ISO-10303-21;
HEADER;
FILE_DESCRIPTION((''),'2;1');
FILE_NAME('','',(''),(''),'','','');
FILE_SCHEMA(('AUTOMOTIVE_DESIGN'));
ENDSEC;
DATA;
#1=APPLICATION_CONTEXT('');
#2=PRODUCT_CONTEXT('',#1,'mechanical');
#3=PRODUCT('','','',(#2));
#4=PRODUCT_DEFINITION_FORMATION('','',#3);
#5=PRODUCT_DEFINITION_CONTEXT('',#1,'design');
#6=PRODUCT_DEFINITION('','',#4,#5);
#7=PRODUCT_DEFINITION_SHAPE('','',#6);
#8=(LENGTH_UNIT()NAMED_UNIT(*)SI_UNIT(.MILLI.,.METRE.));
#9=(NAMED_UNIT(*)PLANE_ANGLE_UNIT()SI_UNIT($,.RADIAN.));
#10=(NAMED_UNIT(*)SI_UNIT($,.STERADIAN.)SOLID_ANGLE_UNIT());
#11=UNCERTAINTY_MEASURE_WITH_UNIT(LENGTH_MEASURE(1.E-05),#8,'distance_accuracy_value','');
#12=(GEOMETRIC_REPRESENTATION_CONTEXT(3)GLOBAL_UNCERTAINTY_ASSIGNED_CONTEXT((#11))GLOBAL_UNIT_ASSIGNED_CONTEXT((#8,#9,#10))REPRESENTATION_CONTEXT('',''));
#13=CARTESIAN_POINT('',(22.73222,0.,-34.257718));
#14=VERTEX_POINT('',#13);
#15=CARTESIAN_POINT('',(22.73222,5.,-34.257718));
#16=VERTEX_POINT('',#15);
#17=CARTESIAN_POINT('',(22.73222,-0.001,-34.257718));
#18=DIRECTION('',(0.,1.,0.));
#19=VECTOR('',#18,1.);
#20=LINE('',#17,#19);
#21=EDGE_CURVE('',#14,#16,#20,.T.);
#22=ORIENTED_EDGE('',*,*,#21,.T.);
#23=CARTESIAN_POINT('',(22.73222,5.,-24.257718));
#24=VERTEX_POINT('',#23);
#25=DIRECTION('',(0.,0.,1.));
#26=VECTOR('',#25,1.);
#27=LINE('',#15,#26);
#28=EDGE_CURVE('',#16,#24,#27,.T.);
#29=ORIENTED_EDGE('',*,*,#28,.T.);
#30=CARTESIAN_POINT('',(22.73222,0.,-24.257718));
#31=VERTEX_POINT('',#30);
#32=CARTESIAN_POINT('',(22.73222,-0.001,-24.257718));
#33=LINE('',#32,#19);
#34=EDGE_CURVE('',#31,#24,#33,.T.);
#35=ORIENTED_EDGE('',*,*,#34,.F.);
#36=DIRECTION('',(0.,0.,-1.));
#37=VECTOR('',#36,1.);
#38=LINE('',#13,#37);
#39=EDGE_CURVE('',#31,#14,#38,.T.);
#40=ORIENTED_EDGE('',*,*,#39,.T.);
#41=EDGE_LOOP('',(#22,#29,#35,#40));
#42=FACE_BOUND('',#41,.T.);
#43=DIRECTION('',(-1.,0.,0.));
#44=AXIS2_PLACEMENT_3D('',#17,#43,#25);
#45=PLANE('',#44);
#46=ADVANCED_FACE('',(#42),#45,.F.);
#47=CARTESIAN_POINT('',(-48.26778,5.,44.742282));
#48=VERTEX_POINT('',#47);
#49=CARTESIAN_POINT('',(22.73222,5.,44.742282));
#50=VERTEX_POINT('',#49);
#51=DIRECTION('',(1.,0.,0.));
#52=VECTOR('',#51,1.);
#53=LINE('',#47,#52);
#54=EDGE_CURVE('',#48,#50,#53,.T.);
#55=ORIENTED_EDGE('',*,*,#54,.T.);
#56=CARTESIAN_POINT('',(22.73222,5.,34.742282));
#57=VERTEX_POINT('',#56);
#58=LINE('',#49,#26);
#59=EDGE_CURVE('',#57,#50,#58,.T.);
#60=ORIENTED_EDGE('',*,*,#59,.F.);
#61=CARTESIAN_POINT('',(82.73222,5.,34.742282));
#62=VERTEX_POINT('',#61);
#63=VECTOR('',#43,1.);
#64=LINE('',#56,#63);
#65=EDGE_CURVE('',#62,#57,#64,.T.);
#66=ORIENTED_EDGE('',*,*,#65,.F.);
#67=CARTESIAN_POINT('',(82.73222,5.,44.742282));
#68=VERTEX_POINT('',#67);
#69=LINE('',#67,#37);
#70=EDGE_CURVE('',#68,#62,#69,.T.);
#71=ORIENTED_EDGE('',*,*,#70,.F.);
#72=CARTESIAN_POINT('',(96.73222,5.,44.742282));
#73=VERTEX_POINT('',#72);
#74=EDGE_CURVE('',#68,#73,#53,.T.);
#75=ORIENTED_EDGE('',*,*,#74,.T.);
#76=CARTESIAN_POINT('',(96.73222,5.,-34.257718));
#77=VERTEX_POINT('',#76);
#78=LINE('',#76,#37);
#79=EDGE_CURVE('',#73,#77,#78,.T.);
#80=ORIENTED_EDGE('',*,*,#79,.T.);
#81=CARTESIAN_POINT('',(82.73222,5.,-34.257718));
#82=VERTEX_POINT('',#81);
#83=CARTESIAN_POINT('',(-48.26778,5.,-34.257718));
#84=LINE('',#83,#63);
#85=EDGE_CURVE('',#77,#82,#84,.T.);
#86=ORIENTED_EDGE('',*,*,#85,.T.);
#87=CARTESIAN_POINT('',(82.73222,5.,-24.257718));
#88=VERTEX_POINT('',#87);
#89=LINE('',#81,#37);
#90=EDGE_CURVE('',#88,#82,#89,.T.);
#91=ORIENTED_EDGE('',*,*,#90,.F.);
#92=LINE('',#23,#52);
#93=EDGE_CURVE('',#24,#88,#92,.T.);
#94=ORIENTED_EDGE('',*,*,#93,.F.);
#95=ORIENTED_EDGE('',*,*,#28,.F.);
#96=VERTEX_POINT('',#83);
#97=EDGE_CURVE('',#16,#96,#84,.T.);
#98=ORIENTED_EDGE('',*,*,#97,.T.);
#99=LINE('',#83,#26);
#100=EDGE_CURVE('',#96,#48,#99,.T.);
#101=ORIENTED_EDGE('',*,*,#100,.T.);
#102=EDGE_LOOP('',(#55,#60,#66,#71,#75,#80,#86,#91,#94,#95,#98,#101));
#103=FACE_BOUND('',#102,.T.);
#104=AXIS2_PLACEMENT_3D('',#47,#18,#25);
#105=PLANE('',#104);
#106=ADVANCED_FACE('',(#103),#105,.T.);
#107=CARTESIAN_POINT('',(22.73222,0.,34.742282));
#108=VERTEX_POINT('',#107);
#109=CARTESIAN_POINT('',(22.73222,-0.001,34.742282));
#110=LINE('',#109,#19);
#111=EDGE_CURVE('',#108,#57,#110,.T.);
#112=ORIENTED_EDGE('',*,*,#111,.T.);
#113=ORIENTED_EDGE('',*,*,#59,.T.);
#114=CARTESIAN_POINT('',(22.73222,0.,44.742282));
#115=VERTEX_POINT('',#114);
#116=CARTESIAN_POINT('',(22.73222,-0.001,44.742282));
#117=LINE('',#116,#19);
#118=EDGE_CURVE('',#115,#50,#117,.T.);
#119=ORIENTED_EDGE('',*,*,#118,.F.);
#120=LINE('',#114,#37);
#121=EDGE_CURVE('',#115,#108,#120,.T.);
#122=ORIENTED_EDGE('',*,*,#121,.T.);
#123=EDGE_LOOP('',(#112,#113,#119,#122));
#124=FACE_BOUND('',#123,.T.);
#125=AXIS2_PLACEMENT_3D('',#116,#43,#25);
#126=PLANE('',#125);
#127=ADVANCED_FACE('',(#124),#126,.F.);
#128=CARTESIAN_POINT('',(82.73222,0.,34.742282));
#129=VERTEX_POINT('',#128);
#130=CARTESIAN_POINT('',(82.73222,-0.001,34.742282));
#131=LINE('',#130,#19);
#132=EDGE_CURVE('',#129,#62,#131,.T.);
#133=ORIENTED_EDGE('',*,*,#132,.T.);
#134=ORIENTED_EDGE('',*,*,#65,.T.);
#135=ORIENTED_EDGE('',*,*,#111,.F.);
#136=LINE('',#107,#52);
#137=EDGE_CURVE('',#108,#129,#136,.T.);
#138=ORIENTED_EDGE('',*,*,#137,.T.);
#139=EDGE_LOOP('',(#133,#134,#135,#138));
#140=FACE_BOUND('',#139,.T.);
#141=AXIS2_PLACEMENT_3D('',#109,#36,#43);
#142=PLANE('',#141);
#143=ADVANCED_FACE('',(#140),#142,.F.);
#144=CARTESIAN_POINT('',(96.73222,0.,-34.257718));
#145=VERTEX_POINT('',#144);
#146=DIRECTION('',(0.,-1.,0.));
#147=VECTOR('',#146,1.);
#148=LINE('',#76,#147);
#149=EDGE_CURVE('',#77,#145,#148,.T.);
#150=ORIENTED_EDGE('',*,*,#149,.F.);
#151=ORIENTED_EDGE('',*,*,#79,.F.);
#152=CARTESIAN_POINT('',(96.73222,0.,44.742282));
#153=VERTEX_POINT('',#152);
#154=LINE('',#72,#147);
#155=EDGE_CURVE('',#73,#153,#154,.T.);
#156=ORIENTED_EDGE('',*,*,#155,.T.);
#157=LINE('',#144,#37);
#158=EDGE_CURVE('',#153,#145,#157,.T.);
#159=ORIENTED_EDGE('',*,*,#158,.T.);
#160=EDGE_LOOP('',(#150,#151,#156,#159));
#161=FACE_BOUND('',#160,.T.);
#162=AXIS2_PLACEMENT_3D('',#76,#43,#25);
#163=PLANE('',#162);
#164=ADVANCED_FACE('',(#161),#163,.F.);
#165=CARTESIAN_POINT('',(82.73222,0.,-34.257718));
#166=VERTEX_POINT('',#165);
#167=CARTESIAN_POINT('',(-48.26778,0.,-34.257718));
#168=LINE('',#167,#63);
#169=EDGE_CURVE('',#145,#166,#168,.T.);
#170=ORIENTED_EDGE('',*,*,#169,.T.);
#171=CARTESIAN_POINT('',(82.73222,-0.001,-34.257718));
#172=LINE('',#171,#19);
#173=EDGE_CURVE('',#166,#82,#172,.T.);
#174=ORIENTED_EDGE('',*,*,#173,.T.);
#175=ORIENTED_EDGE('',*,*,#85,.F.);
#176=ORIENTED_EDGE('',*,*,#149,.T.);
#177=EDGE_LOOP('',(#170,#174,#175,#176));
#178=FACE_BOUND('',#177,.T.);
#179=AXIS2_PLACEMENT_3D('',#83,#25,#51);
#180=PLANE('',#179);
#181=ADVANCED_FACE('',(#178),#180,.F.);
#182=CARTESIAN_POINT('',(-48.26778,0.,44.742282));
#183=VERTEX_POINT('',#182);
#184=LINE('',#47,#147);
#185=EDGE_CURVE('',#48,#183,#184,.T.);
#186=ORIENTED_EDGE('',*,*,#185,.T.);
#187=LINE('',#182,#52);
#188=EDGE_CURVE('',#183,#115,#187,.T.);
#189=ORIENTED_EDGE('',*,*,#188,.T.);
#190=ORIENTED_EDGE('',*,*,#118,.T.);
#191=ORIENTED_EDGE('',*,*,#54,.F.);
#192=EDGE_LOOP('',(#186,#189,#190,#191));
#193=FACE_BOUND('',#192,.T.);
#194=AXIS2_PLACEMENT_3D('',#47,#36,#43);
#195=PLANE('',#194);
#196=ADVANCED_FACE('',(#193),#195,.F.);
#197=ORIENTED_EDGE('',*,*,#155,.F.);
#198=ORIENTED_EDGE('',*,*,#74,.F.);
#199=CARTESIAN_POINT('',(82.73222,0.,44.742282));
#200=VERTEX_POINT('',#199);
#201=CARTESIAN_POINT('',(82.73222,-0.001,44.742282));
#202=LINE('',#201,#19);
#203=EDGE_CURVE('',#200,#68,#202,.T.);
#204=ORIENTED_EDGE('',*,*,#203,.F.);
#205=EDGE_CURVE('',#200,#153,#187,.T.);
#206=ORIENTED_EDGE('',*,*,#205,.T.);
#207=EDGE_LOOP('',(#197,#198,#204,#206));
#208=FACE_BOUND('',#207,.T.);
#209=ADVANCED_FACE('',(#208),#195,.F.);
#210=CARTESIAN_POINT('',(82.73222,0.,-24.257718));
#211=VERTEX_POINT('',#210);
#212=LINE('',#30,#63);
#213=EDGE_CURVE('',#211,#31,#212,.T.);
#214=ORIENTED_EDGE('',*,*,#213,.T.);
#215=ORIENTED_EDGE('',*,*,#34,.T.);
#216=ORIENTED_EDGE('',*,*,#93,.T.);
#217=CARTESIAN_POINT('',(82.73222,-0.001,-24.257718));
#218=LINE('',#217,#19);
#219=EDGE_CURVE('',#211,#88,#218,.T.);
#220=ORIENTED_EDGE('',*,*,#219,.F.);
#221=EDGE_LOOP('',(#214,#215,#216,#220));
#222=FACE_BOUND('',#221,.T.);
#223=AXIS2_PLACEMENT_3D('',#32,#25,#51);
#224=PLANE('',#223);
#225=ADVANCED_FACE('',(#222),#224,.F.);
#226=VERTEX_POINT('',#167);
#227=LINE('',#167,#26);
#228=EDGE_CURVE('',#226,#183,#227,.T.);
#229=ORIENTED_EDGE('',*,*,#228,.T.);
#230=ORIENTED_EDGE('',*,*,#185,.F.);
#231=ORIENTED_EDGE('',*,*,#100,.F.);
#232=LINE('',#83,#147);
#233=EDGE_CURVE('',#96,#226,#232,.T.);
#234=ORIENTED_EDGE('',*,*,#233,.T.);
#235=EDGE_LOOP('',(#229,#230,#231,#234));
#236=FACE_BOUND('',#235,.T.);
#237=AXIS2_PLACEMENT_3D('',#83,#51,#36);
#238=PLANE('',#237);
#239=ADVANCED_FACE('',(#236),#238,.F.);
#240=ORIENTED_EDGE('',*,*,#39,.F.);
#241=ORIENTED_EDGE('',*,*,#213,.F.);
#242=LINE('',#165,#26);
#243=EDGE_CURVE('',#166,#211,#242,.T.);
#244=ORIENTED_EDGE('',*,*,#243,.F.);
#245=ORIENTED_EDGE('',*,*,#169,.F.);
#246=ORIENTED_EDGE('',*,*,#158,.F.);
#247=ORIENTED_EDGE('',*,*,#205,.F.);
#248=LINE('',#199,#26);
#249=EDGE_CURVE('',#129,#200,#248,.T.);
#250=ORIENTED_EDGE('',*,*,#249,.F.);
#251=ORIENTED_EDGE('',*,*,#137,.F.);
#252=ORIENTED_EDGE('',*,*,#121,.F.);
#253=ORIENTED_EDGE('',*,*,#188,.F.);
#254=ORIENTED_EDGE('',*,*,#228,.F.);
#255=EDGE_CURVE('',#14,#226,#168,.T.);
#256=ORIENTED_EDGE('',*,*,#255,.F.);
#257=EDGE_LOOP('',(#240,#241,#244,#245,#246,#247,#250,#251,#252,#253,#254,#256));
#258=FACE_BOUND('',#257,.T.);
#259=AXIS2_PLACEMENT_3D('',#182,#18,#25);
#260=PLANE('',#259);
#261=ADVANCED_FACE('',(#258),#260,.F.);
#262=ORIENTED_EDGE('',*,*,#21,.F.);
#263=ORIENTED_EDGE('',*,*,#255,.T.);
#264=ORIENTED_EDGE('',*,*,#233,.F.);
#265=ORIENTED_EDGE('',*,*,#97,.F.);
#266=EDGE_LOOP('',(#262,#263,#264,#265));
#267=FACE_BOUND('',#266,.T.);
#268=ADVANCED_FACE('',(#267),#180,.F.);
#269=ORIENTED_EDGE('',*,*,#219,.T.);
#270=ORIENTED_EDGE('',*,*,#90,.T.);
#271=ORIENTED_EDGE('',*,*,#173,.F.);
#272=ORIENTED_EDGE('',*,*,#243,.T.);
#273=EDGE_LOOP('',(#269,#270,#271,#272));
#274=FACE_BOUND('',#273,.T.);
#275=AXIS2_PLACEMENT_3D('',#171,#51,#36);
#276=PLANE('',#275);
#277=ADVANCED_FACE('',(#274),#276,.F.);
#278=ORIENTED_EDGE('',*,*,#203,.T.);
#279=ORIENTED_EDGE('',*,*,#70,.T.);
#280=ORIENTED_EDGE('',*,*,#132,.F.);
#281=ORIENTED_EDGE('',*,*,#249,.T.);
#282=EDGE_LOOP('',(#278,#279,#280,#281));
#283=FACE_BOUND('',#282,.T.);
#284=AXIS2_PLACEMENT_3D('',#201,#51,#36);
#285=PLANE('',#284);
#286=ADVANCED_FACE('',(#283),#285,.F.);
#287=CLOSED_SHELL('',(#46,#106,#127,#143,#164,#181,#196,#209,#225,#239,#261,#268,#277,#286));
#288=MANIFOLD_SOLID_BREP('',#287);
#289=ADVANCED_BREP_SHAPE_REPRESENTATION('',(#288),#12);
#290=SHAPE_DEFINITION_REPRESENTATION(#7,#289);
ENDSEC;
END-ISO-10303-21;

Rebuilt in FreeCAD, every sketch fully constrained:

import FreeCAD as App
import Part
import Sketcher
from FreeCAD import Vector
Q = App.Units.Quantity

doc = App.newDocument("Part")
body = doc.addObject("PartDesign::Body", "Body")

# Sketch on XZ plane
sketch1 = body.newObject("Sketcher::SketchObject", "Sketch")
sketch1.AttachmentSupport = (doc.getObject("XZ_Plane"), [""])
sketch1.MapMode = "FlatFace"
sketch1.addGeometry(Part.LineSegment(Vector(-48, -34, 0), Vector(-48, 45, 0)), False)
sketch1.addGeometry(Part.LineSegment(Vector(-48, 45, 0), Vector(97, 45, 0)), False)
sketch1.addGeometry(Part.LineSegment(Vector(97, 45, 0), Vector(97, -34, 0)), False)
sketch1.addGeometry(Part.LineSegment(Vector(97, -34, 0), Vector(-48, -34, 0)), False)
sketch1.addConstraint(Sketcher.Constraint("Coincident", 0, 2, 1, 1))
sketch1.addConstraint(Sketcher.Constraint("Coincident", 1, 2, 2, 1))
sketch1.addConstraint(Sketcher.Constraint("Coincident", 2, 2, 3, 1))
sketch1.addConstraint(Sketcher.Constraint("Coincident", 3, 2, 0, 1))
sketch1.addConstraint(Sketcher.Constraint("Vertical", 0))
sketch1.addConstraint(Sketcher.Constraint("Horizontal", 1))
sketch1.addConstraint(Sketcher.Constraint("Vertical", 2))
sketch1.addConstraint(Sketcher.Constraint("Horizontal", 3))
sketch1.addConstraint(Sketcher.Constraint("DistanceX", 1, 1, 1, 2, Q("145 mm")))
sketch1.addConstraint(Sketcher.Constraint("DistanceY", 0, 1, 0, 2, Q("79 mm")))
sketch1.addConstraint(Sketcher.Constraint("DistanceX", 0, 2, -1, 1, Q("48.26778 mm")))
sketch1.addConstraint(Sketcher.Constraint("DistanceY", -1, 1, 0, 2, Q("44.742282 mm")))
pad1 = body.newObject("PartDesign::Pad", "Pad")
pad1.Profile = sketch1
pad1.Length = 5
pad1.Reversed = True

# Sketch on XZ plane
sketch2 = body.newObject("Sketcher::SketchObject", "Sketch001")
sketch2.AttachmentSupport = (doc.getObject("XZ_Plane"), [""])
sketch2.MapMode = "FlatFace"
sketch2.AttachmentOffset = App.Placement(Vector(0, 0, -5), App.Rotation())
sketch2.addGeometry(Part.LineSegment(Vector(23, -34, 0), Vector(23, -24, 0)), False)
sketch2.addGeometry(Part.LineSegment(Vector(23, -24, 0), Vector(83, -24, 0)), False)
sketch2.addGeometry(Part.LineSegment(Vector(83, -24, 0), Vector(83, -34, 0)), False)
sketch2.addGeometry(Part.LineSegment(Vector(83, -34, 0), Vector(23, -34, 0)), False)
sketch2.addConstraint(Sketcher.Constraint("Coincident", 0, 2, 1, 1))
sketch2.addConstraint(Sketcher.Constraint("Coincident", 1, 2, 2, 1))
sketch2.addConstraint(Sketcher.Constraint("Coincident", 2, 2, 3, 1))
sketch2.addConstraint(Sketcher.Constraint("Coincident", 3, 2, 0, 1))
sketch2.addConstraint(Sketcher.Constraint("Vertical", 0))
sketch2.addConstraint(Sketcher.Constraint("Horizontal", 1))
sketch2.addConstraint(Sketcher.Constraint("Vertical", 2))
sketch2.addConstraint(Sketcher.Constraint("Horizontal", 3))
sketch2.addConstraint(Sketcher.Constraint("DistanceX", 1, 1, 1, 2, Q("60 mm")))
sketch2.addConstraint(Sketcher.Constraint("DistanceY", 0, 1, 0, 2, Q("10 mm")))
sketch2.addConstraint(Sketcher.Constraint("DistanceX", -1, 1, 0, 2, Q("22.73222 mm")))
sketch2.addConstraint(Sketcher.Constraint("DistanceY", 0, 2, -1, 1, Q("24.257718 mm")))
pocket1 = body.newObject("PartDesign::Pocket", "Pocket")
pocket1.Profile = sketch2
pocket1.Type = "UpToFirst"
pocket1.Reversed = True

# Sketch on XZ plane
sketch3 = body.newObject("Sketcher::SketchObject", "Sketch002")
sketch3.AttachmentSupport = (doc.getObject("XZ_Plane"), [""])
sketch3.MapMode = "FlatFace"
sketch3.AttachmentOffset = App.Placement(Vector(0, 0, -5), App.Rotation())
sketch3.addGeometry(Part.LineSegment(Vector(23, 35, 0), Vector(23, 45, 0)), False)
sketch3.addGeometry(Part.LineSegment(Vector(23, 45, 0), Vector(83, 45, 0)), False)
sketch3.addGeometry(Part.LineSegment(Vector(83, 45, 0), Vector(83, 35, 0)), False)
sketch3.addGeometry(Part.LineSegment(Vector(83, 35, 0), Vector(23, 35, 0)), False)
sketch3.addConstraint(Sketcher.Constraint("Coincident", 0, 2, 1, 1))
sketch3.addConstraint(Sketcher.Constraint("Coincident", 1, 2, 2, 1))
sketch3.addConstraint(Sketcher.Constraint("Coincident", 2, 2, 3, 1))
sketch3.addConstraint(Sketcher.Constraint("Coincident", 3, 2, 0, 1))
sketch3.addConstraint(Sketcher.Constraint("Vertical", 0))
sketch3.addConstraint(Sketcher.Constraint("Horizontal", 1))
sketch3.addConstraint(Sketcher.Constraint("Vertical", 2))
sketch3.addConstraint(Sketcher.Constraint("Horizontal", 3))
sketch3.addConstraint(Sketcher.Constraint("DistanceX", 1, 1, 1, 2, Q("60 mm")))
sketch3.addConstraint(Sketcher.Constraint("DistanceY", 0, 1, 0, 2, Q("10 mm")))
sketch3.addConstraint(Sketcher.Constraint("DistanceX", -1, 1, 0, 2, Q("22.73222 mm")))
sketch3.addConstraint(Sketcher.Constraint("DistanceY", -1, 1, 0, 2, Q("44.742282 mm")))
pocket2 = body.newObject("PartDesign::Pocket", "Pocket001")
pocket2.Profile = sketch3
pocket2.Type = "UpToFirst"
pocket2.Reversed = True

doc.recompute()
